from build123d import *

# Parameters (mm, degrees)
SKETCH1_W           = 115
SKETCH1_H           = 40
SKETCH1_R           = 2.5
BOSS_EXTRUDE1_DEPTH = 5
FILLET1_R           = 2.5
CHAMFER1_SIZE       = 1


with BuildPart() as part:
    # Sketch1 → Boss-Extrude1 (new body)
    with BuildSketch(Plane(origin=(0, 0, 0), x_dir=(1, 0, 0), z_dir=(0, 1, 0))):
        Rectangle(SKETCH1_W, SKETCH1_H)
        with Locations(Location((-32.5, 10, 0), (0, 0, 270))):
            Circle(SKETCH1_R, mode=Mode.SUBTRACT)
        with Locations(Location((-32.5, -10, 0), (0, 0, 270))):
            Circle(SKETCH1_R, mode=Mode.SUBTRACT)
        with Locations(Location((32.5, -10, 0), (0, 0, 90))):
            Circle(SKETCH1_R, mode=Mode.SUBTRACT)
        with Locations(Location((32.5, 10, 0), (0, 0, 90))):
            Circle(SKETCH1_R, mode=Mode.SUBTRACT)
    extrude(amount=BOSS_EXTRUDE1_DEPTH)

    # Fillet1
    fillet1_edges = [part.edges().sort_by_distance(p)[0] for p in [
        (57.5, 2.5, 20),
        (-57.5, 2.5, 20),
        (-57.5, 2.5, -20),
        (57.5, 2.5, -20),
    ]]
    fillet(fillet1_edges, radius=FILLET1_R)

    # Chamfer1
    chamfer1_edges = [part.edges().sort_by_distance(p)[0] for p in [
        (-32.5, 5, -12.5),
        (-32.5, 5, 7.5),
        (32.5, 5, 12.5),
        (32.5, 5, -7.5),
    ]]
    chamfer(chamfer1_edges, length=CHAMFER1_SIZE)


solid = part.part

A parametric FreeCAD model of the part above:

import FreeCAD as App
import Part
import Sketcher


def edges_at(feature, points):
    """Names of the edges that pass closest to the given points."""
    edges = feature.Shape.Edges
    near = lambda p: min(range(len(edges)), key=lambda i: edges[i].distToShape(Part.Vertex(*p))[0])
    return sorted({f"Edge{near(p) + 1}" for p in points})


def add_polygon(sketch, points):
    """Adds a closed chain of lines whose ends are joined by coincident constraints."""
    first, n = sketch.GeometryCount, len(points)
    for a, b in zip(points, points[1:] + points[:1]):
        sketch.addGeometry(Part.LineSegment(App.Vector(*a, 0), App.Vector(*b, 0)), False)
    for i in range(n):
        sketch.addConstraint(Sketcher.Constraint("Coincident", first + i, 2, first + (i + 1) % n, 1))

doc = App.newDocument("Part")
body = doc.addObject("PartDesign::Body", "Body")

# Sketch on XZ plane
sketch1 = body.newObject("Sketcher::SketchObject", "Sketch")
sketch1.AttachmentSupport = (doc.getObject("XZ_Plane"), [""])
sketch1.MapMode = "FlatFace"
add_polygon(sketch1, [(-57.5, -20), (-57.5, 20), (57.5, 20), (57.5, -20)])  # lines 0-3
sketch1.addGeometry(Part.Circle(App.Vector(-32.5, 10, 0), App.Vector(0, 0, 1), 2.5), False)  # 4
sketch1.addGeometry(Part.Circle(App.Vector(32.5, 10, 0), App.Vector(0, 0, 1), 2.5), False)  # 5
sketch1.addGeometry(Part.Circle(App.Vector(-32.5, -10, 0), App.Vector(0, 0, 1), 2.5), False)  # 6
sketch1.addGeometry(Part.Circle(App.Vector(32.5, -10, 0), App.Vector(0, 0, 1), 2.5), False)  # 7
sketch1.addConstraint([
    Sketcher.Constraint("Vertical", 0),
    Sketcher.Constraint("Horizontal", 1),
    Sketcher.Constraint("Vertical", 2),
    Sketcher.Constraint("Horizontal", 3),
    Sketcher.Constraint("Equal", 4, 5),
    Sketcher.Constraint("Equal", 5, 6),
    Sketcher.Constraint("Equal", 6, 7),
    Sketcher.Constraint("Symmetric", 5, 3, 6, 3, -1, 1),
    Sketcher.Constraint("Symmetric", 4, 3, 7, 3, -1, 1),
    Sketcher.Constraint("Symmetric", 0, 2, 2, 2, -1, 1),
    Sketcher.Constraint("Symmetric", 4, 3, 5, 3, -2),
    Sketcher.Constraint("Diameter", 4, 5.0),
    Sketcher.Constraint("DistanceX", 1, 1, 1, 2, 115.0),
    Sketcher.Constraint("DistanceY", 0, 1, 0, 2, 40.0),
    Sketcher.Constraint("DistanceY", -1, 1, 4, 3, 10.0),
    Sketcher.Constraint("DistanceX", 4, 3, 5, 3, 65.0),
])
pad1 = body.newObject("PartDesign::Pad", "Pad")
pad1.Profile = sketch1
pad1.Length = 5
pad1.Reversed = True
doc.recompute()

fillet = body.newObject("PartDesign::Fillet", "Fillet")
fillet.Base = (pad1, edges_at(pad1, [
    (57.5, 2.5, 20),
    (-57.5, 2.5, 20),
    (-57.5, 2.5, -20),
    (57.5, 2.5, -20),
]))
fillet.Radius = 2.5
doc.recompute()

chamfer = body.newObject("PartDesign::Chamfer", "Chamfer")
chamfer.Base = (fillet, edges_at(fillet, [
    (-32.5, 5, -12.5),
    (-32.5, 5, 7.5),
    (32.5, 5, 12.5),
    (32.5, 5, -7.5),
]))
chamfer.Size = 1

doc.recompute()
